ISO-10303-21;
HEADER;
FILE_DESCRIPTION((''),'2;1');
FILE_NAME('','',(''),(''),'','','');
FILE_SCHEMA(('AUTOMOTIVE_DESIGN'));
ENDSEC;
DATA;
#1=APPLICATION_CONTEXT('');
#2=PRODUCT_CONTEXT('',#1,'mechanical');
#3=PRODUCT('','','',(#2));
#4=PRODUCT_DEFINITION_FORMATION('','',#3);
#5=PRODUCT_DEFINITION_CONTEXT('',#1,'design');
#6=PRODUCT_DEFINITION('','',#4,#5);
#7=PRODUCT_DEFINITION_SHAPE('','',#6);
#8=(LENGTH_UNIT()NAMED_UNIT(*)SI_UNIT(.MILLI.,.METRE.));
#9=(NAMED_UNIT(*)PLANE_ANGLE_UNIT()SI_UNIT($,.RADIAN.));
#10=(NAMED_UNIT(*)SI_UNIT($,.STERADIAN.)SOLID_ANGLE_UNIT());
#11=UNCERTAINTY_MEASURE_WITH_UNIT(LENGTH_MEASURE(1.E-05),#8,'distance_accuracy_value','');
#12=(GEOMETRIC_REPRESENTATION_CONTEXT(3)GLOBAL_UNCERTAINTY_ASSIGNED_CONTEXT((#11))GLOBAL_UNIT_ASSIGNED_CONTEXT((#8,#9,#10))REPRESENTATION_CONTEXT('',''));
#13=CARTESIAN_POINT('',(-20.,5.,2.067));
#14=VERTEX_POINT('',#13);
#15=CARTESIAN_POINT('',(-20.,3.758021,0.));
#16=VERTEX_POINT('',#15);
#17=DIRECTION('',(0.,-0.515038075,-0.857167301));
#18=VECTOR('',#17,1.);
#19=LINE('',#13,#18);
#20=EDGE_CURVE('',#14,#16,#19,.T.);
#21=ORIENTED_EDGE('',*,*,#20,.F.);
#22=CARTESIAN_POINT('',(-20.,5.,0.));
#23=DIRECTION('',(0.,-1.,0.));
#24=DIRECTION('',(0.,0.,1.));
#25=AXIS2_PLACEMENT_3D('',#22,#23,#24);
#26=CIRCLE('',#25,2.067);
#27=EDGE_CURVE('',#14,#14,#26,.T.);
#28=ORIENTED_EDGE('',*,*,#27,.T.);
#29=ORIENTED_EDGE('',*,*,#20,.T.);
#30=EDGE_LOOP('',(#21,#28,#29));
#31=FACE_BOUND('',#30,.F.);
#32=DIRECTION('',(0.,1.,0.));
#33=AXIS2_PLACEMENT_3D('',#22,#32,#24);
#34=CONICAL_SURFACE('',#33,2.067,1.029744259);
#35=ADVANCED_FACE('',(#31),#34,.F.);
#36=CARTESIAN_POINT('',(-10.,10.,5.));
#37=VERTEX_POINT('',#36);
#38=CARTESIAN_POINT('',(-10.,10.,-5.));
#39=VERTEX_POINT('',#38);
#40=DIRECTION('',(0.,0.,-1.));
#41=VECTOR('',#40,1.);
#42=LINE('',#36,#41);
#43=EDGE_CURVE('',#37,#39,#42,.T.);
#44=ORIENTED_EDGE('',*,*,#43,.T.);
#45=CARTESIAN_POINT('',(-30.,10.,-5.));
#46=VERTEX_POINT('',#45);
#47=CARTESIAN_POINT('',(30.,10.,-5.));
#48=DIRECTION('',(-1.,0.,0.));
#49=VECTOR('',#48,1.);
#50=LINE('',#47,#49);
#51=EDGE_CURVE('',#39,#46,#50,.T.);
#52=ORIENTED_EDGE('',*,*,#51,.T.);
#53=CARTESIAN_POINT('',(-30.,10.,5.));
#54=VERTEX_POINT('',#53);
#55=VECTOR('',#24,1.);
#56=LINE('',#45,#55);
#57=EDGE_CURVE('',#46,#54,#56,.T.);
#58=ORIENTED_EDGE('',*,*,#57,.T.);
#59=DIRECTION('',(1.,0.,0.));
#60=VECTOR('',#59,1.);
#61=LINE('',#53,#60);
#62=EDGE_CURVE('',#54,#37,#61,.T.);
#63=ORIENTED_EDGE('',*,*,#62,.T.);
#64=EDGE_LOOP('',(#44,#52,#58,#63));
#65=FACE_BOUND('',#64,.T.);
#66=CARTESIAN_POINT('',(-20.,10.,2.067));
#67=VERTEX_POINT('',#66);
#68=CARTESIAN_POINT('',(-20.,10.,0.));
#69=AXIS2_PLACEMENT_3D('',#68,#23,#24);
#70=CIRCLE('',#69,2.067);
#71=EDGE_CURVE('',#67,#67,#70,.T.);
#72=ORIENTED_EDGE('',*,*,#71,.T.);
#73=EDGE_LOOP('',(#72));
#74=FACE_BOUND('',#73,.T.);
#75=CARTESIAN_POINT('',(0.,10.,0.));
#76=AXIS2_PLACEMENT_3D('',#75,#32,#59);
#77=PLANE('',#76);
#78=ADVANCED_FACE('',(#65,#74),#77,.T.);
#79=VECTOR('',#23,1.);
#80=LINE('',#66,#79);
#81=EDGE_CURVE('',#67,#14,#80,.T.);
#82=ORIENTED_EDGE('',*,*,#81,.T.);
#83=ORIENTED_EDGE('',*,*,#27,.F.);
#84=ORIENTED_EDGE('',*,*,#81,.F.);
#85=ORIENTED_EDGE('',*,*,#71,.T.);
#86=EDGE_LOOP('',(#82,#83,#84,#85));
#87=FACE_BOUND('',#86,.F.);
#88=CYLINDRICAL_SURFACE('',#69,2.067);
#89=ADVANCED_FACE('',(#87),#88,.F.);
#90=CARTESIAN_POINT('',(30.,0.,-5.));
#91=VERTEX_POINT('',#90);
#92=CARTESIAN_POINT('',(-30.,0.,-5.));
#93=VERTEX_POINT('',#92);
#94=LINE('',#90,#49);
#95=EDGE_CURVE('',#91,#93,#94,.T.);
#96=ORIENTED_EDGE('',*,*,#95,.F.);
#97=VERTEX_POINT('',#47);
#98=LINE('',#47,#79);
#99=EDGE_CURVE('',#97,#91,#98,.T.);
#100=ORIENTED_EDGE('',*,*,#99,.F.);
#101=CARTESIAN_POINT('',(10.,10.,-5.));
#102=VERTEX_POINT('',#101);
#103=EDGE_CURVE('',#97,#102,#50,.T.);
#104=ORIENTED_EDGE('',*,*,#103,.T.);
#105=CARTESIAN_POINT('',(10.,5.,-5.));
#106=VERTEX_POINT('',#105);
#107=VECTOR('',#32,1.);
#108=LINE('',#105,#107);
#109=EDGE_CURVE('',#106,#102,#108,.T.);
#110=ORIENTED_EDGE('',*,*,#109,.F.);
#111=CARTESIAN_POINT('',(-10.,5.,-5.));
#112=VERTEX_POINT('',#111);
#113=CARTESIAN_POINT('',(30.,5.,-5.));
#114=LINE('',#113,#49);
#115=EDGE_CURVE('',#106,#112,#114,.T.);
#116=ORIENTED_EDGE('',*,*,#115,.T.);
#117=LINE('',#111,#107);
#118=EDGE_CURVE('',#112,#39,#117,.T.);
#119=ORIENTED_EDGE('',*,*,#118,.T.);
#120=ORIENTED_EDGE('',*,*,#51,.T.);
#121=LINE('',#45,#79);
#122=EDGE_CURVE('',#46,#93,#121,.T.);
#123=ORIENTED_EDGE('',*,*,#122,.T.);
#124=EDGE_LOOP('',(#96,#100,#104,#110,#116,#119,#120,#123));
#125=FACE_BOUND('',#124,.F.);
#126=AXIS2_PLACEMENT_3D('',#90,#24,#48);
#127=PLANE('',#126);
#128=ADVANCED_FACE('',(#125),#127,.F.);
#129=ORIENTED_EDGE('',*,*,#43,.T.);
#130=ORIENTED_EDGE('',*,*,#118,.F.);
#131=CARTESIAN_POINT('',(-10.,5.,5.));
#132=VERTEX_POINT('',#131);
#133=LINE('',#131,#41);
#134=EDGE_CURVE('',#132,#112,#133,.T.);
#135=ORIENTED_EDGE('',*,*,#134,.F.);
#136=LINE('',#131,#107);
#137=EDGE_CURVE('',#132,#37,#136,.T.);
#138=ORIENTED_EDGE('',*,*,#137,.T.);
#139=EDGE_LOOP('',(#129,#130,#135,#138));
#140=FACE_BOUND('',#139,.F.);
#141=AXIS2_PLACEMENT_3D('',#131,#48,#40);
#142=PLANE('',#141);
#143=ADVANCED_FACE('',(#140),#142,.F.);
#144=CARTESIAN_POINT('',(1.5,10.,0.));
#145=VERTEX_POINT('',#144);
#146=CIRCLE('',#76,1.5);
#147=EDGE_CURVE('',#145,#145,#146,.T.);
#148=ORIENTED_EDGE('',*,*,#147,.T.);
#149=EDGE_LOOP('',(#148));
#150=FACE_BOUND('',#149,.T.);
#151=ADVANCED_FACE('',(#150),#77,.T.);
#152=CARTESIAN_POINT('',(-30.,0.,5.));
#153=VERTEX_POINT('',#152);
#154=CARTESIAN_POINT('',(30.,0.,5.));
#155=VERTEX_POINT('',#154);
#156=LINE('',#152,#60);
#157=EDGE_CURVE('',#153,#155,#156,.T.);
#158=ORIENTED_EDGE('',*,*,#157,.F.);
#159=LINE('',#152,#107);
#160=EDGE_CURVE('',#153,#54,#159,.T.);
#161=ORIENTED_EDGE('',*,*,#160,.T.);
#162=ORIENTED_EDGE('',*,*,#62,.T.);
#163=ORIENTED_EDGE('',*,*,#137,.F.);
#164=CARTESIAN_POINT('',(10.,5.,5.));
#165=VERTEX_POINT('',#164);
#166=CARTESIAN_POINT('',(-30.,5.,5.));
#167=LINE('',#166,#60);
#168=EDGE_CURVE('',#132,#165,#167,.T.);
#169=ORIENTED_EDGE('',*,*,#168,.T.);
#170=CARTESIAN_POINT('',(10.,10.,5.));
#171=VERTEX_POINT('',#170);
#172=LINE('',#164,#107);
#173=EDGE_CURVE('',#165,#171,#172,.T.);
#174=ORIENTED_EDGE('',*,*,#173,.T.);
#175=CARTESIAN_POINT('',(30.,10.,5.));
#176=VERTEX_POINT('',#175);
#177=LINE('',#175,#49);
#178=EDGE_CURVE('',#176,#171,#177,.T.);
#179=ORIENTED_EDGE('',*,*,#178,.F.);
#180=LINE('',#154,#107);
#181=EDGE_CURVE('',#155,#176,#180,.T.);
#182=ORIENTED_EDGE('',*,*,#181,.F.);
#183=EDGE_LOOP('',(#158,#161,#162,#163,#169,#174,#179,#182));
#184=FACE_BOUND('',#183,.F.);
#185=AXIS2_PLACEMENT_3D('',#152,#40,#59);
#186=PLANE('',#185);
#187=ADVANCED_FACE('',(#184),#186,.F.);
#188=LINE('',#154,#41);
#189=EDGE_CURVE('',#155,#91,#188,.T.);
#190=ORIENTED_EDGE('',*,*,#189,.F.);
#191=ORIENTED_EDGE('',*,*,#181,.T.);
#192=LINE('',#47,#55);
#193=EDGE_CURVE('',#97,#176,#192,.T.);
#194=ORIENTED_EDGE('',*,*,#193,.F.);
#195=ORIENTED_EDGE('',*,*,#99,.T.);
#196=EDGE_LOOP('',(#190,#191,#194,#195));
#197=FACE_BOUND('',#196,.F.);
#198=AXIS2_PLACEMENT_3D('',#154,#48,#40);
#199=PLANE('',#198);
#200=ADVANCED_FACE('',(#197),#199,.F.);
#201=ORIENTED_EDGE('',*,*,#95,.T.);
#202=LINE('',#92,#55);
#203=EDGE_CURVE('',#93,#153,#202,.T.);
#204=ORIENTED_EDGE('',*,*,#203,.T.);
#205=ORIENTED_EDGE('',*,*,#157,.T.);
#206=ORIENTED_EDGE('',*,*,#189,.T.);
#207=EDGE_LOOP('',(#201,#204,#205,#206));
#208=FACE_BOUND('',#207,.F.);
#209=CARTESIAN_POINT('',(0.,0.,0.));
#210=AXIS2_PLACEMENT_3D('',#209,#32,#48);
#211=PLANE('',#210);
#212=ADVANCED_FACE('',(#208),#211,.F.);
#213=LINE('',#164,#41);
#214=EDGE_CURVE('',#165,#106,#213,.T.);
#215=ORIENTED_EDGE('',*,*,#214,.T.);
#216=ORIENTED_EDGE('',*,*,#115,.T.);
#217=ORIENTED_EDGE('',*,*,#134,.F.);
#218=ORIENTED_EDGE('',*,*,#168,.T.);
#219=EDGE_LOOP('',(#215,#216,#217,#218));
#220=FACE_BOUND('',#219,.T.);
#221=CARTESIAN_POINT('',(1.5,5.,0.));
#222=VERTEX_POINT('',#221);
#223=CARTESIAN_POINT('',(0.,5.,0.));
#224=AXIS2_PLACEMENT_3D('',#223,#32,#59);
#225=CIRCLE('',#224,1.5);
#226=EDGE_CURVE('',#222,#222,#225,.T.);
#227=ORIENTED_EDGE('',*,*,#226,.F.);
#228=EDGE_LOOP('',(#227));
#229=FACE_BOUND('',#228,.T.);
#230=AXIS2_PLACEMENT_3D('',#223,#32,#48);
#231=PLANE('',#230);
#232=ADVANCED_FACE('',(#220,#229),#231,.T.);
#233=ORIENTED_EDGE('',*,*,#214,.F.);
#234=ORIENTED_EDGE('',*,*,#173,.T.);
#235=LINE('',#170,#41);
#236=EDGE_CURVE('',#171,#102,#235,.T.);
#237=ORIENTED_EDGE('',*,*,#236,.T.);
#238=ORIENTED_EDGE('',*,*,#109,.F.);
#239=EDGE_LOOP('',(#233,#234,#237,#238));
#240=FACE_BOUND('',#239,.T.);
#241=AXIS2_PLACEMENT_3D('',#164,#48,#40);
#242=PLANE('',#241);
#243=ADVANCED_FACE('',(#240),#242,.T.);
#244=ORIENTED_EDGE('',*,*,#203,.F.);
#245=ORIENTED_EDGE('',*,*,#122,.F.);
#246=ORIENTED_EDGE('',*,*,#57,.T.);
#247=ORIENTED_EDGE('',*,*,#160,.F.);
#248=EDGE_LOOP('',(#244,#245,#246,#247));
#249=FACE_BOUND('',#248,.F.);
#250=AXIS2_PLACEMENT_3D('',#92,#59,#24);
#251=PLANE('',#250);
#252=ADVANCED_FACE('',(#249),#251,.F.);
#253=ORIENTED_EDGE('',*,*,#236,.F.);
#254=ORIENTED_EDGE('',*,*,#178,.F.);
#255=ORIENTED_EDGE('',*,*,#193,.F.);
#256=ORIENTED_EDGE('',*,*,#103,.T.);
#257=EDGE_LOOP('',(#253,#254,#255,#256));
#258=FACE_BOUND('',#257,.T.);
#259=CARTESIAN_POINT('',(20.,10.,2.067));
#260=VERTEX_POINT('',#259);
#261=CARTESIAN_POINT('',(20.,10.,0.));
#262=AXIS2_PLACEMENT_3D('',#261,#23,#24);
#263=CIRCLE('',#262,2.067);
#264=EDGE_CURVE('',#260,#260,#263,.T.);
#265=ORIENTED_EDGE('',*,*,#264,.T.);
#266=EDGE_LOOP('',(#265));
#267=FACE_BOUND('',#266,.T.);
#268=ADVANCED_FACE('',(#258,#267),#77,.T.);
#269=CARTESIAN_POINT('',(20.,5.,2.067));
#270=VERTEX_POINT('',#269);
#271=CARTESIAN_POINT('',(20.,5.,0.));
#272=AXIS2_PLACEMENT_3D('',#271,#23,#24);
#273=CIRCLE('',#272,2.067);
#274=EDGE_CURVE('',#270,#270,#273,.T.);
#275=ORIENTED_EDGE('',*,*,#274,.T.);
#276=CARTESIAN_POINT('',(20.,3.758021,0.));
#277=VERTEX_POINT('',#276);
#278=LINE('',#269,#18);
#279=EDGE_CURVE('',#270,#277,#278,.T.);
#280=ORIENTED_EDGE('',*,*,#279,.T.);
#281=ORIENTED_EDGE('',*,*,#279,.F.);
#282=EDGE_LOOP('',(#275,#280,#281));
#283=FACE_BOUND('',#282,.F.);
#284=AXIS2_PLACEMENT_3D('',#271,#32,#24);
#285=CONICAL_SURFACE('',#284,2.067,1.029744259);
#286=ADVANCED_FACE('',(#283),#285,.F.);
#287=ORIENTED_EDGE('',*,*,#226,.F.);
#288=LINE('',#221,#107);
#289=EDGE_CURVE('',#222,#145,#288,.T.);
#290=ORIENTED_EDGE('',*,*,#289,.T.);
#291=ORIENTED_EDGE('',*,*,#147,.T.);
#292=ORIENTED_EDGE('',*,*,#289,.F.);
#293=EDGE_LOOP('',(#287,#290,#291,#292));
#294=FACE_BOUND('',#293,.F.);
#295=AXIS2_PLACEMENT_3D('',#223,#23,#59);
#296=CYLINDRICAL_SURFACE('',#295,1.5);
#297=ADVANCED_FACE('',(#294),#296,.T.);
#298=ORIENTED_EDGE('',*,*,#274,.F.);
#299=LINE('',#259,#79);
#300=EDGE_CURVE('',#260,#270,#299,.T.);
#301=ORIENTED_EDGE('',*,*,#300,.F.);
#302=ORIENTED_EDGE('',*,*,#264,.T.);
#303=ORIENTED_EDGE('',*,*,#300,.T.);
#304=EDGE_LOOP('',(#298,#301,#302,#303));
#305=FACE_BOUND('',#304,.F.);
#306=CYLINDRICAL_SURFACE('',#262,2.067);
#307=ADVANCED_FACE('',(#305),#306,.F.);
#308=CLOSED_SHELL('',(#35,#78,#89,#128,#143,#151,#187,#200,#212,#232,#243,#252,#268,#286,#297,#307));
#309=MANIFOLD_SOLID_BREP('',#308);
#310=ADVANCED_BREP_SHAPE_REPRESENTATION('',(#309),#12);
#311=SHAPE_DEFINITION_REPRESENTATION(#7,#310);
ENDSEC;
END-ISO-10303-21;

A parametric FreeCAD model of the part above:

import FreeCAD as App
import Part
import Sketcher

V = App.Vector


def add_polygon(sketch, points):
    """Adds a closed chain of lines whose ends are joined by coincident constraints."""
    first, n = sketch.GeometryCount, len(points)
    for a, b in zip(points, points[1:] + points[:1]):
        sketch.addGeometry(Part.LineSegment(App.Vector(*a, 0), App.Vector(*b, 0)), False)
    for i in range(n):
        sketch.addConstraint(Sketcher.Constraint("Coincident", first + i, 2, first + (i + 1) % n, 1))

doc = App.newDocument("Part")
body = doc.addObject("PartDesign::Body", "Body")

# Sketch on XZ plane
sketch1 = body.newObject("Sketcher::SketchObject", "Sketch")
sketch1.AttachmentSupport = (doc.getObject("XZ_Plane"), [""])
sketch1.MapMode = "FlatFace"
add_polygon(sketch1, [(-30, -5), (-30, 5), (30, 5), (30, -5)])  # lines 0-3
sketch1.addConstraint(Sketcher.Constraint("Vertical", 0))
sketch1.addConstraint(Sketcher.Constraint("Horizontal", 1))
sketch1.addConstraint(Sketcher.Constraint("Vertical", 2))
sketch1.addConstraint(Sketcher.Constraint("Horizontal", 3))
sketch1.addConstraint(Sketcher.Constraint("Symmetric", 0, 2, 2, 2, -1, 1))
sketch1.addConstraint(Sketcher.Constraint("DistanceX", 1, 1, 1, 2, 60.0))
sketch1.addConstraint(Sketcher.Constraint("DistanceY", 0, 1, 0, 2, 10.0))
pad1 = body.newObject("PartDesign::Pad", "Pad")
pad1.Profile = sketch1
pad1.Length = 5
pad1.Reversed = True

# Sketch on XZ plane
sketch2 = body.newObject("Sketcher::SketchObject", "Sketch001")
sketch2.AttachmentSupport = (doc.getObject("XZ_Plane"), [""])
sketch2.MapMode = "FlatFace"
sketch2.AttachmentOffset = App.Placement(V(0, 0, -5), App.Rotation())
add_polygon(sketch2, [(-10, -5), (-30, -5), (-30, 5), (-10, 5)])  # lines 0-3
add_polygon(sketch2, [(30, -5), (10, -5), (10, 5), (30, 5)])  # lines 4-7
sketch2.addGeometry(Part.Circle(V(0, 0, 0), V(0, 0, 1), 1.5), False)  # 8
sketch2.addConstraint(Sketcher.Constraint("Horizontal", 0))
sketch2.addConstraint(Sketcher.Constraint("Vertical", 1))
sketch2.addConstraint(Sketcher.Constraint("Horizontal", 2))
sketch2.addConstraint(Sketcher.Constraint("Vertical", 3))
sketch2.addConstraint(Sketcher.Constraint("Horizontal", 4))
sketch2.addConstraint(Sketcher.Constraint("Vertical", 5))
sketch2.addConstraint(Sketcher.Constraint("Horizontal", 6))
sketch2.addConstraint(Sketcher.Constraint("Vertical", 7))
sketch2.addConstraint(Sketcher.Constraint("Coincident", 8, 3, -1, 1))
sketch2.addConstraint(Sketcher.Constraint("Symmetric", 2, 2, 4, 2, -1, 1))
sketch2.addConstraint(Sketcher.Constraint("Symmetric", 0, 2, 6, 2, -1, 1))
sketch2.addConstraint(Sketcher.Constraint("Horizontal", 3, 2, 4, 2))
sketch2.addConstraint(Sketcher.Constraint("Diameter", 8, 3.0))
sketch2.addConstraint(Sketcher.Constraint("DistanceX", 0, 2, 0, 1, 20.0))
sketch2.addConstraint(Sketcher.Constraint("DistanceX", 3, 2, 4, 2, 20.0))
sketch2.addConstraint(Sketcher.Constraint("DistanceY", 1, 1, 1, 2, 10.0))
pad2 = body.newObject("PartDesign::Pad", "Pad001")
pad2.Profile = sketch2
pad2.Length = 5
pad2.Reversed = True

# Sketch on XZ plane
sketch3 = body.newObject("Sketcher::SketchObject", "Sketch002")
sketch3.AttachmentSupport = (doc.getObject("XZ_Plane"), [""])
sketch3.MapMode = "FlatFace"
sketch3.AttachmentOffset = App.Placement(V(0, 0, -10), App.Rotation())
sketch3.addGeometry(Part.Circle(V(-20, 0, 0), V(0, 0, 1), 2.067), False)
sketch3.addGeometry(Part.Circle(V(20, 0, 0), V(0, 0, 1), 2.067), False)
sketch3.addConstraint(Sketcher.Constraint("Equal", 0, 1))
sketch3.addConstraint(Sketcher.Constraint("Symmetric", 0, 3, 1, 3, -1, 1))
sketch3.addConstraint(Sketcher.Constraint("PointOnObject", 0, 3, -1))
sketch3.addConstraint(Sketcher.Constraint("Diameter", 0, 4.134))
sketch3.addConstraint(Sketcher.Constraint("DistanceX", 0, 3, -1, 1, 20.0))
doc.recompute()
hole = body.newObject("PartDesign::Hole", "Hole")
hole.Profile = sketch3
hole.ThreadType = "None"
hole.Diameter = 4.134
hole.DepthType = "Dimension"
hole.Depth = 5
hole.DrillPoint = "Angled"
hole.DrillPointAngle = 118
hole.Reversed = True

doc.recompute()
